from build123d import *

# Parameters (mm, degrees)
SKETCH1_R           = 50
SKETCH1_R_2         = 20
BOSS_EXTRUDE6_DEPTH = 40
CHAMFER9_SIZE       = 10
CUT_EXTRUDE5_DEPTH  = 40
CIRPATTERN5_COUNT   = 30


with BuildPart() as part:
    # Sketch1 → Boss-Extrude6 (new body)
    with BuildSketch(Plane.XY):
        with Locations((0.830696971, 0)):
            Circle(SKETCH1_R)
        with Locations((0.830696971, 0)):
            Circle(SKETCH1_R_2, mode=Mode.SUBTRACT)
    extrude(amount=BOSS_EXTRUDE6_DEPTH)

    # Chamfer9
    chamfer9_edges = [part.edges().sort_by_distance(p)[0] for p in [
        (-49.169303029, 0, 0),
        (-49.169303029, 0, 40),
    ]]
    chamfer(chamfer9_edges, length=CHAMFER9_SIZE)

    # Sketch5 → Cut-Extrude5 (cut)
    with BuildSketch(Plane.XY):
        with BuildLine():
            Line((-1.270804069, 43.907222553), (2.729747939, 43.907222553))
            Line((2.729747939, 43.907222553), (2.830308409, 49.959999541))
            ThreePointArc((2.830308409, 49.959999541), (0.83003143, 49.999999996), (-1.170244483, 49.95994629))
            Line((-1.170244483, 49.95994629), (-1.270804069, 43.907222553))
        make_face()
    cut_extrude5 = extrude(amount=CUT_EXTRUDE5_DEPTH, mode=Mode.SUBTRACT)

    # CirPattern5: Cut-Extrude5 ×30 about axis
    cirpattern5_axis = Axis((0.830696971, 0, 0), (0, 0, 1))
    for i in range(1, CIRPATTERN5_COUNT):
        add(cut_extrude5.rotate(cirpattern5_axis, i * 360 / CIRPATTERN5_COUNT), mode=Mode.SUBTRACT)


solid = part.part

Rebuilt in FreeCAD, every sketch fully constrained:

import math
import FreeCAD as App
import Part
import Sketcher
from FreeCAD import Vector


def edges_at(feature, points):
    """Names of the edges that pass closest to the given points."""
    edges = feature.Shape.Edges
    near = lambda p: min(range(len(edges)), key=lambda i: edges[i].distToShape(Part.Vertex(*p))[0])
    return sorted({f"Edge{near(p) + 1}" for p in points})

doc = App.newDocument("Part")
params = doc.addObject("Spreadsheet::Sheet", "Params")
for row, (alias, value) in enumerate([
    ("sketch1_diameter", "100 mm"),
    ("sketch1_diameter2", "40 mm"),
    ("pad1_length", "40 mm"),
    ("chamfer_size", "10 mm"),
    ("sketch2_radius", "50 mm"),
    ("pocket1_length", "40 mm"),
], start=1):
    params.set(f"A{row}", alias)
    params.set(f"B{row}", "=" + value)
    params.setAlias(f"B{row}", alias)

body = doc.addObject("PartDesign::Body", "Body")

sketch1 = body.newObject("Sketcher::SketchObject", "Sketch")
sketch1.AttachmentSupport = (doc.getObject("XY_Plane"), [""])
sketch1.MapMode = "FlatFace"
sketch1.addGeometry([
    Part.Circle(Vector(1, 0, 0), Vector(0, 0, 1), 50),
    Part.Circle(Vector(1, 0, 0), Vector(0, 0, 1), 20),
], False)
sketch1.addConstraint([
    Sketcher.Constraint("Coincident", 1, 3, 0, 3),
    Sketcher.Constraint("PointOnObject", 0, 3, -1),
    Sketcher.Constraint("Diameter", 0, 100.0),
    Sketcher.Constraint("Diameter", 1, 40.0),
    Sketcher.Constraint("DistanceX", -1, 1, 0, 3, 0.830697),
])
sketch1.setExpression("Constraints[2]", "Params.sketch1_diameter")
sketch1.setExpression("Constraints[3]", "Params.sketch1_diameter2")
pad1 = body.newObject("PartDesign::Pad", "Pad")
pad1.Profile = sketch1
pad1.setExpression("Length", "Params.pad1_length")
doc.recompute()

chamfer = body.newObject("PartDesign::Chamfer", "Chamfer")
chamfer.Base = (pad1, edges_at(pad1, [(-49.169, 0, 0), (-49.169, 0, 40)]))
chamfer.setExpression("Size", "Params.chamfer_size")

sketch2 = body.newObject("Sketcher::SketchObject", "Sketch001")
sketch2.AttachmentSupport = (doc.getObject("XY_Plane"), [""])
sketch2.MapMode = "FlatFace"
sketch2.addGeometry([
    Part.LineSegment(Vector(-1.3, 43.9, 0), Vector(2.7, 43.9, 0)),
    Part.LineSegment(Vector(2.7, 43.9, 0), Vector(2.8, 50, 0)),
    Part.ArcOfCircle(Part.Circle(Vector(0.8, 0, 0), Vector(0, 0, 1), 50), math.radians(87.71), math.radians(92.29)),
    Part.LineSegment(Vector(-1.2, 50, 0), Vector(-1.3, 43.9, 0)),
], False)
sketch2.addConstraint([
    Sketcher.Constraint("Coincident", 0, 2, 1, 1),
    Sketcher.Constraint("Coincident", 1, 2, 2, 1),
    Sketcher.Constraint("Coincident", 2, 2, 3, 1),
    Sketcher.Constraint("Coincident", 3, 2, 0, 1),
    Sketcher.Constraint("Horizontal", 0),
    Sketcher.Constraint("PointOnObject", 2, 3, -1),
    Sketcher.Constraint("Parallel", 1, 3),
    Sketcher.Constraint("Radius", 2, 50.0),
    Sketcher.Constraint("DistanceY", -1, 1, 1, 2, 49.96),
    Sketcher.Constraint("DistanceX", 3, 2, 2, 3, 2.101501),
    Sketcher.Constraint("Distance", 3, 6.053559),
    Sketcher.Constraint("DistanceX", 0, 1, 0, 2, 4.000552),
    Sketcher.Constraint("DistanceX", -1, 1, 1, 2, 2.830308),
])
sketch2.setExpression("Constraints[7]", "Params.sketch2_radius")
pocket1 = body.newObject("PartDesign::Pocket", "Pocket")
pocket1.Profile = sketch2
pocket1.setExpression("Length", "Params.pocket1_length")
pocket1.Reversed = True
doc.recompute()

datumline = body.newObject("PartDesign::Line", "DatumLine")
datumline.Placement = App.Placement(Vector(0.830697, 0, 0), App.Rotation(Vector(0, 0, 1), Vector(0, 0, 1)))
polarpattern = body.newObject("PartDesign::PolarPattern", "PolarPattern")
polarpattern.Originals = [pocket1]
polarpattern.Axis = (datumline, [""])
polarpattern.Angle = 360
polarpattern.Occurrences = 30
body.Tip = polarpattern

doc.recompute()
